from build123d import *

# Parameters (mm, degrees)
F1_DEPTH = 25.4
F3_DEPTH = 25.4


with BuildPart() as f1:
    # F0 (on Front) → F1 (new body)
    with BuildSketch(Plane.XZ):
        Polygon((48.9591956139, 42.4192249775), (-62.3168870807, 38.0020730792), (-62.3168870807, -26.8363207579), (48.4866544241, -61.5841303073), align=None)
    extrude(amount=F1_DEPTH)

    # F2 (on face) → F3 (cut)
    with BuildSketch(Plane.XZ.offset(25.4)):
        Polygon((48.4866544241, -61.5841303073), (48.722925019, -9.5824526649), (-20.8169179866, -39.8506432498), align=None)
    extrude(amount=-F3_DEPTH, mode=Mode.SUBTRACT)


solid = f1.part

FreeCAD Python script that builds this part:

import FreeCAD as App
import Part
import Sketcher

V = App.Vector
Q = App.Units.Quantity


def add_polygon(sketch, points):
    """Adds a closed chain of lines whose ends are joined by coincident constraints."""
    first, n = sketch.GeometryCount, len(points)
    for a, b in zip(points, points[1:] + points[:1]):
        sketch.addGeometry(Part.LineSegment(App.Vector(*a, 0), App.Vector(*b, 0)), False)
    for i in range(n):
        sketch.addConstraint(Sketcher.Constraint("Coincident", first + i, 2, first + (i + 1) % n, 1))

doc = App.newDocument("Part")
body = doc.addObject("PartDesign::Body", "Body")

sketch1 = body.newObject("Sketcher::SketchObject", "Sketch")
sketch1.AttachmentSupport = (doc.getObject("XZ_Plane"), [""])
sketch1.MapMode = "FlatFace"
add_polygon(sketch1, [(48.959196, 42.419225), (-62.316887, 38.002073), (-62.316887, -26.836321), (48.486654, -61.58413)])
sketch1.addConstraint(Sketcher.Constraint("Vertical", 1))
sketch1.addConstraint(Sketcher.Constraint("Distance", 0, Q("111.363719 mm")))
sketch1.addConstraint(Sketcher.Constraint("Distance", 3, Q("104.004429 mm")))
sketch1.addConstraint(Sketcher.Constraint("DistanceY", 1, 2, 1, 1, Q("64.838394 mm")))
sketch1.addConstraint(Sketcher.Constraint("DistanceY", 1, 2, -1, 1, Q("26.836321 mm")))
sketch1.addConstraint(Sketcher.Constraint("DistanceY", 2, 2, -1, 1, Q("61.58413 mm")))
sketch1.addConstraint(Sketcher.Constraint("DistanceX", 1, 2, 2, 2, Q("110.803542 mm")))
sketch1.addConstraint(Sketcher.Constraint("DistanceX", 0, 2, -1, 1, Q("62.316887 mm")))
pad1 = body.newObject("PartDesign::Pad", "Pad")
pad1.Profile = sketch1
pad1.Length = Q("1 in")

sketch2 = body.newObject("Sketcher::SketchObject", "Sketch001")
sketch2.AttachmentSupport = (doc.getObject("XZ_Plane"), [""])
sketch2.MapMode = "FlatFace"
sketch2.AttachmentOffset = App.Placement(V(0, 0, 1 * 25.4), App.Rotation())
add_polygon(sketch2, [(48.486654, -61.58413), (48.722925, -9.582453), (-20.816918, -39.850643)])
sketch2.addConstraint(Sketcher.Constraint("Distance", 1, Q("75.841632 mm")))
sketch2.addConstraint(Sketcher.Constraint("DistanceY", 2, 2, -1, 1, Q("61.58413 mm")))
sketch2.addConstraint(Sketcher.Constraint("DistanceY", 1, 2, 0, 2, Q("30.268191 mm")))
sketch2.addConstraint(Sketcher.Constraint("DistanceX", 2, 2, 0, 2, Q("0.236271 mm")))
sketch2.addConstraint(Sketcher.Constraint("Distance", 0, Q("52.002214 mm")))
sketch2.addConstraint(Sketcher.Constraint("DistanceX", -1, 1, 0, 2, Q("48.722925 mm")))
pocket1 = body.newObject("PartDesign::Pocket", "Pocket")
pocket1.Profile = sketch2
pocket1.Length = Q("1 in")

doc.recompute()
